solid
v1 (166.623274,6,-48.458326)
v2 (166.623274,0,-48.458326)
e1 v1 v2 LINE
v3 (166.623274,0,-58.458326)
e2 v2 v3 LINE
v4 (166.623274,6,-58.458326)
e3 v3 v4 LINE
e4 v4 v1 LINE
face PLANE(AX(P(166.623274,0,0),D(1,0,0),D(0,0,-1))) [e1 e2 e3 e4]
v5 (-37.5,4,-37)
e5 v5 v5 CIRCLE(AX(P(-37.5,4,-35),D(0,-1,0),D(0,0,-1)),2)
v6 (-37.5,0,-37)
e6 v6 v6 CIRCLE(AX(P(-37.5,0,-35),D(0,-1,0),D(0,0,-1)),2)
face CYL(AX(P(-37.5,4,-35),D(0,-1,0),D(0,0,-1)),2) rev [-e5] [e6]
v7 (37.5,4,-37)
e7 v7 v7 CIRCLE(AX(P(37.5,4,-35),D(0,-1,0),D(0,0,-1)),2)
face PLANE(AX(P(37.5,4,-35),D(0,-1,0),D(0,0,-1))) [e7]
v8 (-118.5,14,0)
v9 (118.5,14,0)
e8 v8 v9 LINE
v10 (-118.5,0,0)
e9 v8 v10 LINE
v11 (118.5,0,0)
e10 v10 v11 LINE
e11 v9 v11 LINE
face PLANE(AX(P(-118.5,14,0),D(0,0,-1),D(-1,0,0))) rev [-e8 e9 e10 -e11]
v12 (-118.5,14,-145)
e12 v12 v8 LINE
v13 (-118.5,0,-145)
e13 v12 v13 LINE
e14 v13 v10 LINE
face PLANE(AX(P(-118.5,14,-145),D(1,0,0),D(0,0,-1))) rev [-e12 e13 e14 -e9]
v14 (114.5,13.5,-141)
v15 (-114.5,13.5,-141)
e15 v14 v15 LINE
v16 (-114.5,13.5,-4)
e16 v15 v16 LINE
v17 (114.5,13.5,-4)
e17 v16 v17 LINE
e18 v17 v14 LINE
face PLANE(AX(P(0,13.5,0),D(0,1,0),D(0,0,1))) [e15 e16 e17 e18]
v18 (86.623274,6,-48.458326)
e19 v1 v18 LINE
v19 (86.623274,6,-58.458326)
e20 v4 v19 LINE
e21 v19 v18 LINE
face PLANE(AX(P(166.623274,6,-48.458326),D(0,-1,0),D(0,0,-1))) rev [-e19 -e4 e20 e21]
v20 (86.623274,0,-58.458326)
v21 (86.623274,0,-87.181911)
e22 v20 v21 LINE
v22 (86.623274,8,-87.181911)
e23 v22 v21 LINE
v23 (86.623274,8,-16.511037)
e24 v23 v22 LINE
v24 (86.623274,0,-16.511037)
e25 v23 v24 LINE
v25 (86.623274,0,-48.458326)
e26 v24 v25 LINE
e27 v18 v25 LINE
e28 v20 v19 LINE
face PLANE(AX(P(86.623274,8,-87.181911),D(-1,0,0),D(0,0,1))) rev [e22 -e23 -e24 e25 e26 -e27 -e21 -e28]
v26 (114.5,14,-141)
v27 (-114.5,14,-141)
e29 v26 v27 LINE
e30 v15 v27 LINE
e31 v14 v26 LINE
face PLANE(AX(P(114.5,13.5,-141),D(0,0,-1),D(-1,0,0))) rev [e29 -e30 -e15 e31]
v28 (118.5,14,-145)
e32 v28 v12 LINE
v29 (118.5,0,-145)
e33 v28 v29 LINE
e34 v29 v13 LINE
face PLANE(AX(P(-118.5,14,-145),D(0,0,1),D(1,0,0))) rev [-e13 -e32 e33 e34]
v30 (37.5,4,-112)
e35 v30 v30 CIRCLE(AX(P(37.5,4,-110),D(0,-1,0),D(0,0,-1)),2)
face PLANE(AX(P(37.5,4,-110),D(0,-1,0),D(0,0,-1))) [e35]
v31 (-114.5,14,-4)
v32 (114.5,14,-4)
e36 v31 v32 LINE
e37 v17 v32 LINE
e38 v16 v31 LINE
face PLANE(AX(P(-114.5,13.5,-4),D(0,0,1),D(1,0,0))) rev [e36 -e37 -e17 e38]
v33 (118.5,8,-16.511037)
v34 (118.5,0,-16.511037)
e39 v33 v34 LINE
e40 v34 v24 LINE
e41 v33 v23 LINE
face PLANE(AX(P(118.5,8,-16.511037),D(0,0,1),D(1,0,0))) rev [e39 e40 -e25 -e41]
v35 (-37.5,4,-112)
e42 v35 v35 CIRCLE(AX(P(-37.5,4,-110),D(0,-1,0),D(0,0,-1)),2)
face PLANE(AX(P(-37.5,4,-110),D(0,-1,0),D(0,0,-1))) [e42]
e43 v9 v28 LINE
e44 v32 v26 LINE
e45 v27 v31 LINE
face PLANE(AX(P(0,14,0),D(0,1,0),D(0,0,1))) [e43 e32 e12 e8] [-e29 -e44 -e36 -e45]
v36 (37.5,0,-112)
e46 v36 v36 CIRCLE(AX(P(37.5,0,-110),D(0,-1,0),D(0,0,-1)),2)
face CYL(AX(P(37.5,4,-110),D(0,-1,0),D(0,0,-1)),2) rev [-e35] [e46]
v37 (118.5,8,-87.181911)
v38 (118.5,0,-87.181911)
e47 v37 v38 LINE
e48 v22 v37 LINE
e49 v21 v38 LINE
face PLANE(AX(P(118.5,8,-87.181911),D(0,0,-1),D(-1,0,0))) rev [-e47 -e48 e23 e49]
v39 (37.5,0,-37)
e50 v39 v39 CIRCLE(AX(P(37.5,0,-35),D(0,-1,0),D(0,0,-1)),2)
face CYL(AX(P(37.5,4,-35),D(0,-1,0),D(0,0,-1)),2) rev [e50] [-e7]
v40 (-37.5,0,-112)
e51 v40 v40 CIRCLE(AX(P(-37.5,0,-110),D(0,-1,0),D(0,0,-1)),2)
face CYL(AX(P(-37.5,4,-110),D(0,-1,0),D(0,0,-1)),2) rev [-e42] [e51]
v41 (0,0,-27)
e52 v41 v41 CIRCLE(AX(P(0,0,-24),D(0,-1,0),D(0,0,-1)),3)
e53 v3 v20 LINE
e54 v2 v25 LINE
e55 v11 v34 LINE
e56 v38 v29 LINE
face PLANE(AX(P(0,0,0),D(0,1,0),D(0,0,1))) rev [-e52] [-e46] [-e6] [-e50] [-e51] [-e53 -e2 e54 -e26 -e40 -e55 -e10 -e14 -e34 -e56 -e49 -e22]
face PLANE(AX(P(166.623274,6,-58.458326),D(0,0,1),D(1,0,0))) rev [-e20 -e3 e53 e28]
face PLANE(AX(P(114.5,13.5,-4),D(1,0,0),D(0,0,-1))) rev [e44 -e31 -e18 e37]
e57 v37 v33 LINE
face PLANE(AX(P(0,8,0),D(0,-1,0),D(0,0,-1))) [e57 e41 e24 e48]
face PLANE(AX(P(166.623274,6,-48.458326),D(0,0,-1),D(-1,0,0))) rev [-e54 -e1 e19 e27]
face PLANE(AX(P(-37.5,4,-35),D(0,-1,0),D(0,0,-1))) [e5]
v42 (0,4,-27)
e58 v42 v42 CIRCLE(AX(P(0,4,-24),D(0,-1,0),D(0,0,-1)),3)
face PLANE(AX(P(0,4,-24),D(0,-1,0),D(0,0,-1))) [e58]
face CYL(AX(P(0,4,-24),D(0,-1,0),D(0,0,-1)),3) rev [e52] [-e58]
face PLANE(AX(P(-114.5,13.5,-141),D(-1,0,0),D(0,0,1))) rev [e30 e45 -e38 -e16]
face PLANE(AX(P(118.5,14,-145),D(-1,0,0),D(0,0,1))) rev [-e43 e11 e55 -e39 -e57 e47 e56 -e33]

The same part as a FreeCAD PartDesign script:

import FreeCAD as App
import Part
import Sketcher

V = App.Vector
Q = App.Units.Quantity


def add_polygon(sketch, points):
    """Adds a closed chain of lines whose ends are joined by coincident constraints."""
    first, n = sketch.GeometryCount, len(points)
    for a, b in zip(points, points[1:] + points[:1]):
        sketch.addGeometry(Part.LineSegment(App.Vector(*a, 0), App.Vector(*b, 0)), False)
    for i in range(n):
        sketch.addConstraint(Sketcher.Constraint("Coincident", first + i, 2, first + (i + 1) % n, 1))

doc = App.newDocument("Part")
body = doc.addObject("PartDesign::Body", "Body")

# Sketch on XZ plane
sketch1 = body.newObject("Sketcher::SketchObject", "Sketch")
sketch1.AttachmentSupport = (doc.getObject("XZ_Plane"), [""])
sketch1.MapMode = "FlatFace"
add_polygon(sketch1, [(-118, -145), (-118, 0), (118, 0), (118, -145)])  # lines 0-3
sketch1.addConstraint(Sketcher.Constraint("Vertical", 0))
sketch1.addConstraint(Sketcher.Constraint("Horizontal", 1))
sketch1.addConstraint(Sketcher.Constraint("Vertical", 2))
sketch1.addConstraint(Sketcher.Constraint("Horizontal", 3))
sketch1.addConstraint(Sketcher.Constraint("Symmetric", 0, 2, 1, 2, -1, 1))
sketch1.addConstraint(Sketcher.Constraint("DistanceX", 1, 1, 1, 2, Q("237 mm")))
sketch1.addConstraint(Sketcher.Constraint("DistanceY", 0, 1, 0, 2, Q("145 mm")))
pad1 = body.newObject("PartDesign::Pad", "Pad")
pad1.Profile = sketch1
pad1.Length = 14
pad1.Reversed = True

# Sketch on XZ plane
sketch2 = body.newObject("Sketcher::SketchObject", "Sketch001")
sketch2.AttachmentSupport = (doc.getObject("XZ_Plane"), [""])
sketch2.MapMode = "FlatFace"
sketch2.addGeometry(Part.Circle(V(37.5, -110, 0), V(0, 0, 1), 2), False)
sketch2.addGeometry(Part.Circle(V(-37.5, -110, 0), V(0, 0, 1), 2), False)
sketch2.addGeometry(Part.Circle(V(-37.5, -35, 0), V(0, 0, 1), 2), False)
sketch2.addGeometry(Part.Circle(V(37.5, -35, 0), V(0, 0, 1), 2), False)
sketch2.addGeometry(Part.Circle(V(0, -24, 0), V(0, 0, 1), 3), False)
sketch2.addConstraint(Sketcher.Constraint("Equal", 0, 1))
sketch2.addConstraint(Sketcher.Constraint("Equal", 1, 2))
sketch2.addConstraint(Sketcher.Constraint("Equal", 2, 3))
sketch2.addConstraint(Sketcher.Constraint("Symmetric", 0, 3, 1, 3, -2))
sketch2.addConstraint(Sketcher.Constraint("Symmetric", 2, 3, 3, 3, -2))
sketch2.addConstraint(Sketcher.Constraint("PointOnObject", 4, 3, -2))
sketch2.addConstraint(Sketcher.Constraint("Vertical", 1, 3, 2, 3))
sketch2.addConstraint(Sketcher.Constraint("Diameter", 0, Q("4 mm")))
sketch2.addConstraint(Sketcher.Constraint("Diameter", 4, Q("6 mm")))
sketch2.addConstraint(Sketcher.Constraint("DistanceY", 0, 3, -1, 1, Q("110 mm")))
sketch2.addConstraint(Sketcher.Constraint("DistanceY", 2, 3, -1, 1, Q("35 mm")))
sketch2.addConstraint(Sketcher.Constraint("DistanceY", 4, 3, -1, 1, Q("24 mm")))
sketch2.addConstraint(Sketcher.Constraint("DistanceX", 1, 3, 0, 3, Q("75 mm")))
pocket1 = body.newObject("PartDesign::Pocket", "Pocket")
pocket1.Profile = sketch2
pocket1.Length = 4

# Sketch on XZ plane
sketch3 = body.newObject("Sketcher::SketchObject", "Sketch002")
sketch3.AttachmentSupport = (doc.getObject("XZ_Plane"), [""])
sketch3.MapMode = "FlatFace"
add_polygon(sketch3, [(87, -17), (87, -87), (118, -87), (118, -17)])  # lines 0-3
sketch3.addConstraint(Sketcher.Constraint("Vertical", 0))
sketch3.addConstraint(Sketcher.Constraint("Horizontal", 1))
sketch3.addConstraint(Sketcher.Constraint("Vertical", 2))
sketch3.addConstraint(Sketcher.Constraint("Horizontal", 3))
sketch3.addConstraint(Sketcher.Constraint("DistanceX", -1, 1, 1, 2, Q("118.5 mm")))
sketch3.addConstraint(Sketcher.Constraint("DistanceX", 1, 1, 1, 2, Q("31.876726 mm")))
sketch3.addConstraint(Sketcher.Constraint("DistanceY", 0, 2, 0, 1, Q("70.670874 mm")))
sketch3.addConstraint(Sketcher.Constraint("DistanceY", 0, 2, -1, 1, Q("87.181911 mm")))
pocket2 = body.newObject("PartDesign::Pocket", "Pocket001")
pocket2.Profile = sketch3
pocket2.Length = 8

# Sketch on XZ plane
sketch4 = body.newObject("Sketcher::SketchObject", "Sketch003")
sketch4.AttachmentSupport = (doc.getObject("XZ_Plane"), [""])
sketch4.MapMode = "FlatFace"
sketch4.AttachmentOffset = App.Placement(V(0, 0, -14), App.Rotation())
add_polygon(sketch4, [(-114, -141), (-114, -4), (114, -4), (114, -141)])  # lines 0-3
sketch4.addConstraint(Sketcher.Constraint("Vertical", 0))
sketch4.addConstraint(Sketcher.Constraint("Horizontal", 1))
sketch4.addConstraint(Sketcher.Constraint("Vertical", 2))
sketch4.addConstraint(Sketcher.Constraint("Horizontal", 3))
sketch4.addConstraint(Sketcher.Constraint("DistanceX", 1, 1, 1, 2, Q("229 mm")))
sketch4.addConstraint(Sketcher.Constraint("DistanceY", 0, 1, 0, 2, Q("137 mm")))
sketch4.addConstraint(Sketcher.Constraint("DistanceY", 0, 2, -1, 1, Q("4 mm")))
sketch4.addConstraint(Sketcher.Constraint("DistanceX", 0, 2, -1, 1, Q("114.5 mm")))
pocket3 = body.newObject("PartDesign::Pocket", "Pocket002")
pocket3.Profile = sketch4
pocket3.Length = 0.5
pocket3.Reversed = True

# Sketch on YZ plane
sketch5 = body.newObject("Sketcher::SketchObject", "Sketch004")
sketch5.AttachmentSupport = (doc.getObject("YZ_Plane"), [""])
sketch5.MapMode = "FlatFace"
sketch5.AttachmentOffset = App.Placement(V(0, 0, 86.623274), App.Rotation())
add_polygon(sketch5, [(6, -48), (0, -48), (0, -58), (6, -58)])  # lines 0-3
sketch5.addConstraint(Sketcher.Constraint("Horizontal", 0))
sketch5.addConstraint(Sketcher.Constraint("Vertical", 1))
sketch5.addConstraint(Sketcher.Constraint("Horizontal", 2))
sketch5.addConstraint(Sketcher.Constraint("Vertical", 3))
sketch5.addConstraint(Sketcher.Constraint("PointOnObject", 0, 2, -2))
sketch5.addConstraint(Sketcher.Constraint("DistanceX", 0, 2, 0, 1, Q("6 mm")))
sketch5.addConstraint(Sketcher.Constraint("DistanceY", 1, 2, 1, 1, Q("10 mm")))
sketch5.addConstraint(Sketcher.Constraint("DistanceY", 0, 2, -1, 1, Q("48.458326 mm")))
pad2 = body.newObject("PartDesign::Pad", "Pad001")
pad2.Profile = sketch5
pad2.Length = 80

doc.recompute()
